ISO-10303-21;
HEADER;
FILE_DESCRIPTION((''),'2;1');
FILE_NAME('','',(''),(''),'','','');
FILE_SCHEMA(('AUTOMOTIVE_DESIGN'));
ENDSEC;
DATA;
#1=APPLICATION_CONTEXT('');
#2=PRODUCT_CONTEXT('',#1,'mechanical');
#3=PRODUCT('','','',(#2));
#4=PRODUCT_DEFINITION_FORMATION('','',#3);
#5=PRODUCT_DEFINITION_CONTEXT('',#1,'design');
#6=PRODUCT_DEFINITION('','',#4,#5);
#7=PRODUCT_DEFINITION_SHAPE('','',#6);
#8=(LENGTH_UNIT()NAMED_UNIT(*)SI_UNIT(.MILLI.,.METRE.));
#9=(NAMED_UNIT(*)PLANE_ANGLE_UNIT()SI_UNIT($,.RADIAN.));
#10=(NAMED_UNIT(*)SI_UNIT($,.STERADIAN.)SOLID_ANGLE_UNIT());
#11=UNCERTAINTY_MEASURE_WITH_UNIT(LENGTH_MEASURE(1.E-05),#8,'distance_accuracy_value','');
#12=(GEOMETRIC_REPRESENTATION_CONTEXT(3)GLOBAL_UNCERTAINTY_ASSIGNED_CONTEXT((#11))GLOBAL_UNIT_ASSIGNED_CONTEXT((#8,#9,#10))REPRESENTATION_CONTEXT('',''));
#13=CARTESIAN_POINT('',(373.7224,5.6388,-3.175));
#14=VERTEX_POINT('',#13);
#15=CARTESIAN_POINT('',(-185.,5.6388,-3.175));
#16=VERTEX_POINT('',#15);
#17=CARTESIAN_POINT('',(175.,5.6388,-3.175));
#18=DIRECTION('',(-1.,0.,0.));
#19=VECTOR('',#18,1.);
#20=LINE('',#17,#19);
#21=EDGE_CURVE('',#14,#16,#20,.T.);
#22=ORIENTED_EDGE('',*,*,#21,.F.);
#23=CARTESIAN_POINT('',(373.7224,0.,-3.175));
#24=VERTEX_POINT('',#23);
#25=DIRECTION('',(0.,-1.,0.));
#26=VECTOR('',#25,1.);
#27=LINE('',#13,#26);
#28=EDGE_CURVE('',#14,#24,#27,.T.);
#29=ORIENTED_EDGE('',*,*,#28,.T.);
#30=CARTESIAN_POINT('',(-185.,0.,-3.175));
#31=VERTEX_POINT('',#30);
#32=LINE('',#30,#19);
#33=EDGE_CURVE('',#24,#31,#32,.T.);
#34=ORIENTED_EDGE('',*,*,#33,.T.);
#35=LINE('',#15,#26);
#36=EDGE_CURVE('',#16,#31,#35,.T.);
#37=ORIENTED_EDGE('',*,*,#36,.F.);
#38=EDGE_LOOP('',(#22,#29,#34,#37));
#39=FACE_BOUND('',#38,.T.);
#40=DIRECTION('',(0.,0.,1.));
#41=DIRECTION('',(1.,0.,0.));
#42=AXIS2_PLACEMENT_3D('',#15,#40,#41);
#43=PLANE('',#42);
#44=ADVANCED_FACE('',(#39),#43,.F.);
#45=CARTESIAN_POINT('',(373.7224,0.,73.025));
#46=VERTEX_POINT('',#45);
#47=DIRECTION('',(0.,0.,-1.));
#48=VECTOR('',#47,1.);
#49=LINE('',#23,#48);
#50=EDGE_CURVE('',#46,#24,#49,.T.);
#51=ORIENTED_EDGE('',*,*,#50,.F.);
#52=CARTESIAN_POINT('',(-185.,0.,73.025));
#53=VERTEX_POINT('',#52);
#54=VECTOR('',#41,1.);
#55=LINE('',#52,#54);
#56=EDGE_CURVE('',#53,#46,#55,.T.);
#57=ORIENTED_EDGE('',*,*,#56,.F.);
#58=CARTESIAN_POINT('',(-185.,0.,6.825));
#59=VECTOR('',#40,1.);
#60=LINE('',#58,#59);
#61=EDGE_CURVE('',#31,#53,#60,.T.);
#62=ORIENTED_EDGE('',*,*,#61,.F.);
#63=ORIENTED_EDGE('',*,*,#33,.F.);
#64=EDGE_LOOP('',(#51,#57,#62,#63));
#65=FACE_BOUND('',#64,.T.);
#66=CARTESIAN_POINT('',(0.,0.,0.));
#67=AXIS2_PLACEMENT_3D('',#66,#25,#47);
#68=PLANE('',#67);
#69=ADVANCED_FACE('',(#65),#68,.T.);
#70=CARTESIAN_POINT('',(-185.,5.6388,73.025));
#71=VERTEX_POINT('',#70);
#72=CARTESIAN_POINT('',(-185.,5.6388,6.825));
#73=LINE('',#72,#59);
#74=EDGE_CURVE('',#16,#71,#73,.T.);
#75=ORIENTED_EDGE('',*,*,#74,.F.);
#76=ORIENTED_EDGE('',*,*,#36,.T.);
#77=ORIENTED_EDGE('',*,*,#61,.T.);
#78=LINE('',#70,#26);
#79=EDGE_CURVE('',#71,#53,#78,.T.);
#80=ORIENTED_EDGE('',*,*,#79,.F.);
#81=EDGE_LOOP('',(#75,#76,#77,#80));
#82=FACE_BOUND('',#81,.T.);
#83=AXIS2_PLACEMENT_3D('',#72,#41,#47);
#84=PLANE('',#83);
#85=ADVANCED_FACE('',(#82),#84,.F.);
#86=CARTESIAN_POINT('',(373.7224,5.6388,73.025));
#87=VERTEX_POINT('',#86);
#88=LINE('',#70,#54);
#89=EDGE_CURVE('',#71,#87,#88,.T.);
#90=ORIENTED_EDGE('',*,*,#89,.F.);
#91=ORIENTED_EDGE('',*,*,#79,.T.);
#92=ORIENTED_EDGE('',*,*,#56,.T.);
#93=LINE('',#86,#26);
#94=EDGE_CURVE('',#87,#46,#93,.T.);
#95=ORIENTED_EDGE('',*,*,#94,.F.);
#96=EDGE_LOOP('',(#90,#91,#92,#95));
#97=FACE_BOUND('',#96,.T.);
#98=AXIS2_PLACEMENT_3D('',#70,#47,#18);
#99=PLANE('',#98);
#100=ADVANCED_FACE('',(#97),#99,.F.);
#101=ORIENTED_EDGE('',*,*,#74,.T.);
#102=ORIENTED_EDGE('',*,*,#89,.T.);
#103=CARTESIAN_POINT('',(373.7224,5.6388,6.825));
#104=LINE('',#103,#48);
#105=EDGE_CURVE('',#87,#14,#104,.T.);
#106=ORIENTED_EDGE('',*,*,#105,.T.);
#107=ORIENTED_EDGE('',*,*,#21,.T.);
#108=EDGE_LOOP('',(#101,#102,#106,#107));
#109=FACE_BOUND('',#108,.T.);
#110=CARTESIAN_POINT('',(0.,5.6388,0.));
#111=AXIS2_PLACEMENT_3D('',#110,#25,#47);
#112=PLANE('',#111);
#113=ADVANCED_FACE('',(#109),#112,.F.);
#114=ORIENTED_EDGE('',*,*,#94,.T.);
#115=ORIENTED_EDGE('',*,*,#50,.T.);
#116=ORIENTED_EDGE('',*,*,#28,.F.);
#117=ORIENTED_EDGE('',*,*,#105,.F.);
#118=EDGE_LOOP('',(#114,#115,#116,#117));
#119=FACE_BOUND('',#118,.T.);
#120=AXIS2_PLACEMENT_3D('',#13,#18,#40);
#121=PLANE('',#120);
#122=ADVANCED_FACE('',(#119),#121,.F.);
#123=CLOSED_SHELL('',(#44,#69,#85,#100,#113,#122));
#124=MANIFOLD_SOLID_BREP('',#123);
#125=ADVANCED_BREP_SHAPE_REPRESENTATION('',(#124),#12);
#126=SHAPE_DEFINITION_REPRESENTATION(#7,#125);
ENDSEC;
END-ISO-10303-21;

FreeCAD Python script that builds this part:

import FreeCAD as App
import Part
import Sketcher
Q = App.Units.Quantity


def add_polygon(sketch, points):
    """Adds a closed chain of lines whose ends are joined by coincident constraints."""
    first, n = sketch.GeometryCount, len(points)
    for a, b in zip(points, points[1:] + points[:1]):
        sketch.addGeometry(Part.LineSegment(App.Vector(*a, 0), App.Vector(*b, 0)), False)
    for i in range(n):
        sketch.addConstraint(Sketcher.Constraint("Coincident", first + i, 2, first + (i + 1) % n, 1))

doc = App.newDocument("Part")
body = doc.addObject("PartDesign::Body", "Body")

# Sketch on XZ plane
sketch1 = doc.addObject("Sketcher::SketchObject", "Sketch")
body.addObject(sketch1)
sketch1.AttachmentSupport = (doc.XZ_Plane, [""])
sketch1.MapMode = "FlatFace"
add_polygon(sketch1, [(-185, 73), (374, 73), (374, -3), (-185, -3)])  # lines 0-3
sketch1.addConstraint([
    Sketcher.Constraint("Horizontal", 0),
    Sketcher.Constraint("Vertical", 1),
    Sketcher.Constraint("Horizontal", 2),
    Sketcher.Constraint("Vertical", 3),
    Sketcher.Constraint("DistanceY", 1, 2, 1, 1, Q("3 in")),
    Sketcher.Constraint("DistanceY", -1, 1, 0, 2, Q("2.875 in")),
    Sketcher.Constraint("DistanceX", 0, 1, 0, 2, Q("558.7224 mm")),
    Sketcher.Constraint("DistanceX", -1, 1, 0, 2, Q("373.7224 mm")),
])
pad1 = doc.addObject("PartDesign::Pad", "Pad")
body.addObject(pad1)
pad1.Profile = sketch1
pad1.Length = Q("0.222 in")
pad1.Reversed = True

doc.recompute()
